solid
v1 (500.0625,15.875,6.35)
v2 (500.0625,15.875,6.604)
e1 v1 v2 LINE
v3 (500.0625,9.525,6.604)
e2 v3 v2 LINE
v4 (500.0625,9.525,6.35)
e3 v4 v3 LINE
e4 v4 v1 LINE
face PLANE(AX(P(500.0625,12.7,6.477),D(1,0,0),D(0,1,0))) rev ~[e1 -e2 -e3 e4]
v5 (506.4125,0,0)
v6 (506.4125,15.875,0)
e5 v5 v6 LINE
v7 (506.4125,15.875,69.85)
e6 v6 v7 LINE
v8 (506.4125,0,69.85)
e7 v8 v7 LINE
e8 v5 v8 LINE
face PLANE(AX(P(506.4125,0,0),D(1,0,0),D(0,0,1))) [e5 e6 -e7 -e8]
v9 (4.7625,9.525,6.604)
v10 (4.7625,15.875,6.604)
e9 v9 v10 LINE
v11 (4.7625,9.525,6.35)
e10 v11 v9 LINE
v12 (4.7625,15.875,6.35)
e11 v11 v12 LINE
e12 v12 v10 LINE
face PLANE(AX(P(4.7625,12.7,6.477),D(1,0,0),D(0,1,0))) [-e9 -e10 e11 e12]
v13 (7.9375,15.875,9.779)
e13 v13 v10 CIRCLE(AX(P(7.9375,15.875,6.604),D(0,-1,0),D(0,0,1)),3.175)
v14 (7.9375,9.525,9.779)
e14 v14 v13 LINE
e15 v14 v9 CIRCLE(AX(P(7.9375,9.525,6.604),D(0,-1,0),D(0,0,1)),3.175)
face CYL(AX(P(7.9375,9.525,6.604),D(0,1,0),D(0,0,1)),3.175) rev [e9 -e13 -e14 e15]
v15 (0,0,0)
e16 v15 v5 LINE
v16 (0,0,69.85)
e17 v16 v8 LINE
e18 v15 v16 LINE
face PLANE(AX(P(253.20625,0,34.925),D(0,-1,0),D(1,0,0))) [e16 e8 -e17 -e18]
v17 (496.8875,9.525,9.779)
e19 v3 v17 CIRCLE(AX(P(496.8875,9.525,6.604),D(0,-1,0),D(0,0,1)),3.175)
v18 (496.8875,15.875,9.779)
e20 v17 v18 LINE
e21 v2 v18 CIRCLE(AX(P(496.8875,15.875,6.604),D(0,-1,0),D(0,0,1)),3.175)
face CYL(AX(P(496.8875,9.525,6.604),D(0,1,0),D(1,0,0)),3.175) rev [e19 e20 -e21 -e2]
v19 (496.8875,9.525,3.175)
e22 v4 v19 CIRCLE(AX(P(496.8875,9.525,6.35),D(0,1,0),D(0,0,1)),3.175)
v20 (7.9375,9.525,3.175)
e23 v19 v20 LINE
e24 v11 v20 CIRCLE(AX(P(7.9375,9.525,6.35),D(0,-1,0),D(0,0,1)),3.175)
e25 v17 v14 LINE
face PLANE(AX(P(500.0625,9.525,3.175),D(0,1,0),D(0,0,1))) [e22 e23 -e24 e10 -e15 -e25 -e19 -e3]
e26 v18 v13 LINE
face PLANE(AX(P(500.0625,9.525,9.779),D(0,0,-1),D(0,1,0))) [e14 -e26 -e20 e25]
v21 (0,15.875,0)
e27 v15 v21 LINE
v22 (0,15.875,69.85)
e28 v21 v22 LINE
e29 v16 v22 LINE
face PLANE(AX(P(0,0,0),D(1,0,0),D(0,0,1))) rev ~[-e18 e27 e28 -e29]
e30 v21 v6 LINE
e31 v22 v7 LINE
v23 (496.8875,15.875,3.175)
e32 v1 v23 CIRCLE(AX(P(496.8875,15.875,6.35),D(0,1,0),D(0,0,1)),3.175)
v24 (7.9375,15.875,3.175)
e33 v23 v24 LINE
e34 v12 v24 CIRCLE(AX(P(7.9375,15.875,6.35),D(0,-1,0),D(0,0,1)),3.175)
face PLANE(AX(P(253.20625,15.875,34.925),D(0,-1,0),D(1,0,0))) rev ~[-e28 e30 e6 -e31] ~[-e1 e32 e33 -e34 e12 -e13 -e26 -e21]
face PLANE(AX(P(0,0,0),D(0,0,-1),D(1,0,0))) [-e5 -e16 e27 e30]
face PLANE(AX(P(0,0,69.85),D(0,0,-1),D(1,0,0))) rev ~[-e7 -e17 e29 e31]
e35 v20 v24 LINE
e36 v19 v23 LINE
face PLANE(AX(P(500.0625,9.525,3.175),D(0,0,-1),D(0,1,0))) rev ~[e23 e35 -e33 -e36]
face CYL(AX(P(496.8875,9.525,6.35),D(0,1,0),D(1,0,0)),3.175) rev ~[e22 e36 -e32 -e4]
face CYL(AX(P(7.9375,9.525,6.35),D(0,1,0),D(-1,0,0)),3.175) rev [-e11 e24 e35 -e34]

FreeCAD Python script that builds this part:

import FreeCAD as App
import Part
import Sketcher

V = App.Vector
Q = App.Units.Quantity


def edges_at(feature, points):
    """Names of the edges that pass closest to the given points."""
    edges = feature.Shape.Edges
    near = lambda p: min(range(len(edges)), key=lambda i: edges[i].distToShape(Part.Vertex(*p))[0])
    return sorted({f"Edge{near(p) + 1}" for p in points})

doc = App.newDocument("Part")
body = doc.addObject("PartDesign::Body", "Body")

sketch1 = body.newObject("Sketcher::SketchObject", "Sketch")
sketch1.AttachmentSupport = (doc.getObject("XZ_Plane"), [""])
sketch1.MapMode = "FlatFace"
sketch1.addGeometry(Part.LineSegment(V(0, 70, 0), V(0, 0, 0)), False)
sketch1.addGeometry(Part.LineSegment(V(0, 0, 0), V(506, 0, 0)), False)
sketch1.addGeometry(Part.LineSegment(V(506, 0, 0), V(506, 70, 0)), False)
sketch1.addGeometry(Part.LineSegment(V(506, 70, 0), V(0, 70, 0)), False)
sketch1.addConstraint(Sketcher.Constraint("Coincident", 0, 2, 1, 1))
sketch1.addConstraint(Sketcher.Constraint("Coincident", 1, 2, 2, 1))
sketch1.addConstraint(Sketcher.Constraint("Coincident", 2, 2, 3, 1))
sketch1.addConstraint(Sketcher.Constraint("Coincident", 3, 2, 0, 1))
sketch1.addConstraint(Sketcher.Constraint("Vertical", 0))
sketch1.addConstraint(Sketcher.Constraint("Horizontal", 1))
sketch1.addConstraint(Sketcher.Constraint("Vertical", 2))
sketch1.addConstraint(Sketcher.Constraint("Horizontal", 3))
sketch1.addConstraint(Sketcher.Constraint("Coincident", 0, 2, -1, 1))
sketch1.addConstraint(Sketcher.Constraint("DistanceY", 0, 2, 0, 1, Q("2.75 in")))
sketch1.addConstraint(Sketcher.Constraint("DistanceX", 1, 1, 1, 2, Q("19.9375 in")))
pad1 = body.newObject("PartDesign::Pad", "Pad")
pad1.Profile = sketch1
pad1.Length = Q("0.625 in")
pad1.Reversed = True

sketch2 = body.newObject("Sketcher::SketchObject", "Sketch001")
sketch2.AttachmentSupport = (doc.getObject("YZ_Plane"), [""])
sketch2.MapMode = "FlatFace"
sketch2.AttachmentOffset = App.Placement(V(0, 0, 19.6875 * 25.4), App.Rotation())
sketch2.addGeometry(Part.LineSegment(V(10, 10, 0), V(10, 3, 0)), False)
sketch2.addGeometry(Part.LineSegment(V(10, 3, 0), V(16, 3, 0)), False)
sketch2.addGeometry(Part.LineSegment(V(16, 3, 0), V(16, 10, 0)), False)
sketch2.addGeometry(Part.LineSegment(V(16, 10, 0), V(10, 10, 0)), False)
sketch2.addConstraint(Sketcher.Constraint("Coincident", 0, 2, 1, 1))
sketch2.addConstraint(Sketcher.Constraint("Coincident", 1, 2, 2, 1))
sketch2.addConstraint(Sketcher.Constraint("Coincident", 2, 2, 3, 1))
sketch2.addConstraint(Sketcher.Constraint("Coincident", 3, 2, 0, 1))
sketch2.addConstraint(Sketcher.Constraint("Vertical", 0))
sketch2.addConstraint(Sketcher.Constraint("Horizontal", 1))
sketch2.addConstraint(Sketcher.Constraint("Vertical", 2))
sketch2.addConstraint(Sketcher.Constraint("Horizontal", 3))
sketch2.addConstraint(Sketcher.Constraint("DistanceX", 1, 1, 1, 2, Q("0.25 in")))
sketch2.addConstraint(Sketcher.Constraint("DistanceY", 0, 2, 0, 1, Q("0.26 in")))
sketch2.addConstraint(Sketcher.Constraint("DistanceX", -1, 1, 0, 2, Q("0.375 in")))
sketch2.addConstraint(Sketcher.Constraint("DistanceY", -1, 1, 0, 2, Q("0.125 in")))
pocket1 = body.newObject("PartDesign::Pocket", "Pocket")
pocket1.Profile = sketch2
pocket1.Length = Q("19.5 in")
doc.recompute()

fillet = body.newObject("PartDesign::Fillet", "Fillet")
fillet.Base = (pocket1, edges_at(pocket1, [
    (500.062, 12.7, 9.779),
    (500.062, 12.7, 3.175),
    (4.763, 12.7, 3.175),
    (4.763, 12.7, 9.779),
]))
fillet.Radius = Q("0.125 in")

doc.recompute()
